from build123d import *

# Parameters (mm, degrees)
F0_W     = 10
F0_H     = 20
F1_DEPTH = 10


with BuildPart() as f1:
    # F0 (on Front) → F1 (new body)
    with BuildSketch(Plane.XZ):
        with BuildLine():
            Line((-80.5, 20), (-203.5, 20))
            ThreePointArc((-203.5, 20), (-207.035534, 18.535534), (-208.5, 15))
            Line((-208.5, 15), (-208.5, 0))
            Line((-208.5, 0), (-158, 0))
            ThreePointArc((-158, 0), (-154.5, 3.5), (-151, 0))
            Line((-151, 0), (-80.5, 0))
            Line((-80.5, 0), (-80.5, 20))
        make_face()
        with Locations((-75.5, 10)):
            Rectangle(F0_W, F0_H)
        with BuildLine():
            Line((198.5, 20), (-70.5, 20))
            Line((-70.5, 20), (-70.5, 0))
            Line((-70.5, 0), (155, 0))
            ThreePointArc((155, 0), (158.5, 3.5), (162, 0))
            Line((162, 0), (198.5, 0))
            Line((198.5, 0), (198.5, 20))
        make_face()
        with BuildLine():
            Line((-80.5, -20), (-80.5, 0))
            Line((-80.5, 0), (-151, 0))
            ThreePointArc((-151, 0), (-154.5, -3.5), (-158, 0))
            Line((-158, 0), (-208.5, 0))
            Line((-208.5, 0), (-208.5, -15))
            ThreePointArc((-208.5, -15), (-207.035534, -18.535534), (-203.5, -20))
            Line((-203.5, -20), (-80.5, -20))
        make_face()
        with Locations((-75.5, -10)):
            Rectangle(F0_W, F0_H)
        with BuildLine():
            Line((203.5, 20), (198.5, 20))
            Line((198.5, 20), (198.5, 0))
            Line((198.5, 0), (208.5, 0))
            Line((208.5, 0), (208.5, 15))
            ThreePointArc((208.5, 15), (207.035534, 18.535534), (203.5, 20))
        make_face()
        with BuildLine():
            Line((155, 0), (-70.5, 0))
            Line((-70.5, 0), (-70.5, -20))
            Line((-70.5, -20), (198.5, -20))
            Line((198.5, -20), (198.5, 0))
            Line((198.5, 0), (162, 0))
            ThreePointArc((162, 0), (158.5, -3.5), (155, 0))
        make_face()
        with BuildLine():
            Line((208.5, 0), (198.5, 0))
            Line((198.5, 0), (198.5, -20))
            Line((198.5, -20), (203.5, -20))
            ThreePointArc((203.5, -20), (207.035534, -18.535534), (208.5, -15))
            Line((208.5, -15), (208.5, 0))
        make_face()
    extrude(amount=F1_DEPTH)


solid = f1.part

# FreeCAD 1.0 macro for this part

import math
import FreeCAD as App
import Part
import Sketcher
Q = App.Units.Quantity

doc = App.newDocument("Part")
body = doc.addObject("PartDesign::Body", "Body")

# Sketch on XZ plane
sketch1 = doc.addObject("Sketcher::SketchObject", "Sketch")
body.addObject(sketch1)
sketch1.AttachmentSupport = (doc.XZ_Plane, [""])
sketch1.MapMode = "FlatFace"
sketch1.addGeometry([
    Part.ArcOfCircle(Part.Circle(App.Vector(-203.5, 15, 0), App.Vector(0, 0, 1), 5), math.radians(89.999996), math.radians(180.000004)),  # 0
    Part.LineSegment(App.Vector(-208.5, 15, 0), App.Vector(-208.5, -15, 0)),  # 1
    Part.ArcOfCircle(Part.Circle(App.Vector(-203.5, -15, 0), App.Vector(0, 0, 1), 5), math.radians(179.999996), math.radians(270.000004)),  # 2
    Part.LineSegment(App.Vector(-203.5, -20, 0), App.Vector(203.5, -20, 0)),  # 3
    Part.ArcOfCircle(Part.Circle(App.Vector(203.5, -15, 0), App.Vector(0, 0, 1), 5), math.radians(-90.000004), math.radians(0.000004)),  # 4
    Part.LineSegment(App.Vector(208.5, -15, 0), App.Vector(208.5, 15, 0)),  # 5
    Part.ArcOfCircle(Part.Circle(App.Vector(203.5, 15, 0), App.Vector(0, 0, 1), 5), math.radians(-0.000004), math.radians(90.000004)),  # 6
    Part.LineSegment(App.Vector(203.5, 20, 0), App.Vector(-203.5, 20, 0)),  # 7
    Part.Circle(App.Vector(158.5, 0, 0), App.Vector(0, 0, 1), 3.5),  # 8
    Part.Circle(App.Vector(-154.5, 0, 0), App.Vector(0, 0, 1), 3.5),  # 9
], False)
sketch1.addConstraint([
    Sketcher.Constraint("Tangent", 0, 2, 1, 1),
    Sketcher.Constraint("Tangent", 1, 2, 2, 1),
    Sketcher.Constraint("Tangent", 2, 2, 3, 1),
    Sketcher.Constraint("Tangent", 3, 2, 4, 1),
    Sketcher.Constraint("Tangent", 4, 2, 5, 1),
    Sketcher.Constraint("Tangent", 5, 2, 6, 1),
    Sketcher.Constraint("Tangent", 6, 2, 7, 1),
    Sketcher.Constraint("Tangent", 7, 2, 0, 1),
    Sketcher.Constraint("Vertical", 1),
    Sketcher.Constraint("Horizontal", 3),
    Sketcher.Constraint("Vertical", 5),
    Sketcher.Constraint("Horizontal", 7),
    Sketcher.Constraint("Equal", 0, 2),
    Sketcher.Constraint("Equal", 2, 4),
    Sketcher.Constraint("Equal", 4, 6),
    Sketcher.Constraint("Equal", 8, 9),
    Sketcher.Constraint("Symmetric", 0, 3, 4, 3, -1, 1),
    Sketcher.Constraint("PointOnObject", 8, 3, -1),
    Sketcher.Constraint("PointOnObject", 9, 3, -1),
    Sketcher.Constraint("Diameter", 8, Q("7 mm")),
    Sketcher.Constraint("Radius", 0, Q("5 mm")),
    Sketcher.Constraint("DistanceX", 3, 1, 3, 2, Q("407 mm")),
    Sketcher.Constraint("DistanceY", 1, 2, 1, 1, Q("30 mm")),
    Sketcher.Constraint("DistanceX", 8, 3, 4, 3, Q("45 mm")),
    Sketcher.Constraint("DistanceX", 0, 3, 9, 3, Q("49 mm")),
])
pad1 = doc.addObject("PartDesign::Pad", "Pad")
body.addObject(pad1)
pad1.Profile = sketch1
pad1.Length = 10

doc.recompute()
